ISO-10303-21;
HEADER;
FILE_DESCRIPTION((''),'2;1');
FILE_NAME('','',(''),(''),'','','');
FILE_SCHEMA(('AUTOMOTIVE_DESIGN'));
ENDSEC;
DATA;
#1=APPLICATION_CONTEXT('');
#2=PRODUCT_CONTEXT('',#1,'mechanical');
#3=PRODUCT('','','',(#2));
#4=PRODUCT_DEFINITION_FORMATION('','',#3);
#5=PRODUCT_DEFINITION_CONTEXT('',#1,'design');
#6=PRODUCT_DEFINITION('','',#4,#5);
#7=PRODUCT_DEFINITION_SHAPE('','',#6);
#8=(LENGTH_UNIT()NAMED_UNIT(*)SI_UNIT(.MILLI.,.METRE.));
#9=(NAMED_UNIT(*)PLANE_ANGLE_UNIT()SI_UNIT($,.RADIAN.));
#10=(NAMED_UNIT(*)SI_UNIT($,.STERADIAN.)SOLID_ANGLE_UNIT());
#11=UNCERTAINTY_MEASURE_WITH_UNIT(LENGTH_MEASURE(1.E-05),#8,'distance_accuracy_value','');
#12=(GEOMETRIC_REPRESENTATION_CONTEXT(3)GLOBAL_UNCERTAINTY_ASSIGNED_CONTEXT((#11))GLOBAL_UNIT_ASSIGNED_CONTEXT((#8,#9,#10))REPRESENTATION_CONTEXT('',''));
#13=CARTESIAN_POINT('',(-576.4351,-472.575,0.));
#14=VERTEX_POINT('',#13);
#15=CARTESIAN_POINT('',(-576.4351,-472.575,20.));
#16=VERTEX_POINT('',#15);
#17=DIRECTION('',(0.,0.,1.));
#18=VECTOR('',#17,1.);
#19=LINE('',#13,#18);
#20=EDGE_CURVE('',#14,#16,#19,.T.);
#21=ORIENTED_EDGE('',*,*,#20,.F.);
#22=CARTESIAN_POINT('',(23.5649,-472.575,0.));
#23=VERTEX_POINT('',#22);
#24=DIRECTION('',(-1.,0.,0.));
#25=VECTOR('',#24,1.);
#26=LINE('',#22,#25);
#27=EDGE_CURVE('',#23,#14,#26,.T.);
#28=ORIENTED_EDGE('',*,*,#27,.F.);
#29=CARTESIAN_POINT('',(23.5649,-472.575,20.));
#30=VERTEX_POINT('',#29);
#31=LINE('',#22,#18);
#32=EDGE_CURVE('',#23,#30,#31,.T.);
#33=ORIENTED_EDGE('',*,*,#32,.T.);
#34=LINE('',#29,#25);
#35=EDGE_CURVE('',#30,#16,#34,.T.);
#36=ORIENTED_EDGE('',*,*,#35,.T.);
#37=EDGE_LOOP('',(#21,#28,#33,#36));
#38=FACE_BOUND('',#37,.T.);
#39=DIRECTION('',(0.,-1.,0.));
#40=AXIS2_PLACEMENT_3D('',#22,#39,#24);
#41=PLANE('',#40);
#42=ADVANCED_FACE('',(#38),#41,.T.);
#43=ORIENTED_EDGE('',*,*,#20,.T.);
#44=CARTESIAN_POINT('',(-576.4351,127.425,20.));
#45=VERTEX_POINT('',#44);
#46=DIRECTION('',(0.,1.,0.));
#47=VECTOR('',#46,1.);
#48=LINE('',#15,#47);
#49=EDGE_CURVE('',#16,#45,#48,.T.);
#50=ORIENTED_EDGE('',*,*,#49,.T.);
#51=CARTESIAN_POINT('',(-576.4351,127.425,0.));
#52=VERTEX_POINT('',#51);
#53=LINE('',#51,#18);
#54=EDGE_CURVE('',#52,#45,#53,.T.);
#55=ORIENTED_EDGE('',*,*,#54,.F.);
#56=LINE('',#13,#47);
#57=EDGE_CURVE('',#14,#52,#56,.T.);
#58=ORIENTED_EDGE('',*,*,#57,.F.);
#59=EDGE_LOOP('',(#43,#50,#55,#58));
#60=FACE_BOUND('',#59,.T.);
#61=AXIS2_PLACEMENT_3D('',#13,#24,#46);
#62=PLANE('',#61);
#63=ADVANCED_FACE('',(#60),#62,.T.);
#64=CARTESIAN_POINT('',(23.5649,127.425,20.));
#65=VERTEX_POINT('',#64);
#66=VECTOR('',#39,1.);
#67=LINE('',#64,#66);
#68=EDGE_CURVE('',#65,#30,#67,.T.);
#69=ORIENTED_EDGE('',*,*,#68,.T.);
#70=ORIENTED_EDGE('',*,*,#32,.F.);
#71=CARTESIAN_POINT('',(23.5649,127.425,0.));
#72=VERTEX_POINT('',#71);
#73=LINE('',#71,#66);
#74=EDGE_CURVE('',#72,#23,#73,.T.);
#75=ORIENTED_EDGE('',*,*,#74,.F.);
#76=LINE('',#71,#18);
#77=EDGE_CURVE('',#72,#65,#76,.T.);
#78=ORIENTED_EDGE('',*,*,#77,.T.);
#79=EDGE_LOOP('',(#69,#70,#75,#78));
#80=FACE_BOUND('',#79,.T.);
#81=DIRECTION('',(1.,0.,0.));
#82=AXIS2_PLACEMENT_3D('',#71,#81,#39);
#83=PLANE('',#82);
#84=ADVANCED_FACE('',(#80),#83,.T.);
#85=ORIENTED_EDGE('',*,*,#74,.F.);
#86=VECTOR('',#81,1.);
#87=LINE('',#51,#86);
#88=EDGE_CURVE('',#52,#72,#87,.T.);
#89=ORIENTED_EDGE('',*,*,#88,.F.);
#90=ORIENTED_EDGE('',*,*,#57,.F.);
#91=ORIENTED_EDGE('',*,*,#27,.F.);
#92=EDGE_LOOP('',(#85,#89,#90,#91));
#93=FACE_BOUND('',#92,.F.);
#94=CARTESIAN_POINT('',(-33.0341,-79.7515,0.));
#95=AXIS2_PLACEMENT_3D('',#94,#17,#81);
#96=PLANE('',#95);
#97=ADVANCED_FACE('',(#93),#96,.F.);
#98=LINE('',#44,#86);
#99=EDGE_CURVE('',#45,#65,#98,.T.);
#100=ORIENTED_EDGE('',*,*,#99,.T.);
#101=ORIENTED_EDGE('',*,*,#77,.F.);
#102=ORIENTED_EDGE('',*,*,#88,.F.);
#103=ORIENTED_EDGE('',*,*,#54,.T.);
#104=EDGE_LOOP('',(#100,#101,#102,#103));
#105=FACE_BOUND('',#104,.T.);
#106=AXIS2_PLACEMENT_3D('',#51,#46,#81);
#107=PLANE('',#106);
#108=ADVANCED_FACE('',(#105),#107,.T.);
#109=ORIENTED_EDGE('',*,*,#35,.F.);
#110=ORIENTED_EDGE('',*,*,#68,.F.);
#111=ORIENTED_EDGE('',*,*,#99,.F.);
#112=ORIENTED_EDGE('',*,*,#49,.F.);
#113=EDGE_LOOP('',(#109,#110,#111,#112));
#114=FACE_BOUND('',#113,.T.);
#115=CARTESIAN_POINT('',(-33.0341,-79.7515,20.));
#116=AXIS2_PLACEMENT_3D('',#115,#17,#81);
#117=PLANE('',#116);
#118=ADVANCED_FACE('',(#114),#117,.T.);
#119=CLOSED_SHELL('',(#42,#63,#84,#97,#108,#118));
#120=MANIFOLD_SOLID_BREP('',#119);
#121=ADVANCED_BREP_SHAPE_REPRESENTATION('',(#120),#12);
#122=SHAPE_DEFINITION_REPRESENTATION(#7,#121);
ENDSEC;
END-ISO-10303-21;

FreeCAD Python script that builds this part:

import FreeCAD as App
import Part
import Sketcher

V = App.Vector
Q = App.Units.Quantity

doc = App.newDocument("Part")
body = doc.addObject("PartDesign::Body", "Body")

sketch1 = body.newObject("Sketcher::SketchObject", "Sketch")
sketch1.AttachmentSupport = (doc.getObject("XY_Plane"), [""])
sketch1.MapMode = "FlatFace"
sketch1.addGeometry([
    Part.LineSegment(V(-576, -473, 0), V(24, -473, 0)),
    Part.LineSegment(V(24, -473, 0), V(24, 127, 0)),
    Part.LineSegment(V(24, 127, 0), V(-576, 127, 0)),
    Part.LineSegment(V(-576, 127, 0), V(-576, -473, 0)),
], False)
sketch1.addConstraint([
    Sketcher.Constraint("Coincident", 0, 2, 1, 1),
    Sketcher.Constraint("Coincident", 1, 2, 2, 1),
    Sketcher.Constraint("Coincident", 2, 2, 3, 1),
    Sketcher.Constraint("Coincident", 3, 2, 0, 1),
    Sketcher.Constraint("Horizontal", 0),
    Sketcher.Constraint("Vertical", 1),
    Sketcher.Constraint("Horizontal", 2),
    Sketcher.Constraint("Vertical", 3),
    Sketcher.Constraint("Equal", 2, 1),
    Sketcher.Constraint("DistanceX", 0, 1, 0, 2, Q("600 mm")),
    Sketcher.Constraint("DistanceX", -1, 1, 0, 2, Q("23.565 mm")),
    Sketcher.Constraint("DistanceY", 0, 2, -1, 1, Q("472.575 mm")),
])
pad1 = body.newObject("PartDesign::Pad", "Pad")
pad1.Profile = sketch1
pad1.Length = 20

doc.recompute()
